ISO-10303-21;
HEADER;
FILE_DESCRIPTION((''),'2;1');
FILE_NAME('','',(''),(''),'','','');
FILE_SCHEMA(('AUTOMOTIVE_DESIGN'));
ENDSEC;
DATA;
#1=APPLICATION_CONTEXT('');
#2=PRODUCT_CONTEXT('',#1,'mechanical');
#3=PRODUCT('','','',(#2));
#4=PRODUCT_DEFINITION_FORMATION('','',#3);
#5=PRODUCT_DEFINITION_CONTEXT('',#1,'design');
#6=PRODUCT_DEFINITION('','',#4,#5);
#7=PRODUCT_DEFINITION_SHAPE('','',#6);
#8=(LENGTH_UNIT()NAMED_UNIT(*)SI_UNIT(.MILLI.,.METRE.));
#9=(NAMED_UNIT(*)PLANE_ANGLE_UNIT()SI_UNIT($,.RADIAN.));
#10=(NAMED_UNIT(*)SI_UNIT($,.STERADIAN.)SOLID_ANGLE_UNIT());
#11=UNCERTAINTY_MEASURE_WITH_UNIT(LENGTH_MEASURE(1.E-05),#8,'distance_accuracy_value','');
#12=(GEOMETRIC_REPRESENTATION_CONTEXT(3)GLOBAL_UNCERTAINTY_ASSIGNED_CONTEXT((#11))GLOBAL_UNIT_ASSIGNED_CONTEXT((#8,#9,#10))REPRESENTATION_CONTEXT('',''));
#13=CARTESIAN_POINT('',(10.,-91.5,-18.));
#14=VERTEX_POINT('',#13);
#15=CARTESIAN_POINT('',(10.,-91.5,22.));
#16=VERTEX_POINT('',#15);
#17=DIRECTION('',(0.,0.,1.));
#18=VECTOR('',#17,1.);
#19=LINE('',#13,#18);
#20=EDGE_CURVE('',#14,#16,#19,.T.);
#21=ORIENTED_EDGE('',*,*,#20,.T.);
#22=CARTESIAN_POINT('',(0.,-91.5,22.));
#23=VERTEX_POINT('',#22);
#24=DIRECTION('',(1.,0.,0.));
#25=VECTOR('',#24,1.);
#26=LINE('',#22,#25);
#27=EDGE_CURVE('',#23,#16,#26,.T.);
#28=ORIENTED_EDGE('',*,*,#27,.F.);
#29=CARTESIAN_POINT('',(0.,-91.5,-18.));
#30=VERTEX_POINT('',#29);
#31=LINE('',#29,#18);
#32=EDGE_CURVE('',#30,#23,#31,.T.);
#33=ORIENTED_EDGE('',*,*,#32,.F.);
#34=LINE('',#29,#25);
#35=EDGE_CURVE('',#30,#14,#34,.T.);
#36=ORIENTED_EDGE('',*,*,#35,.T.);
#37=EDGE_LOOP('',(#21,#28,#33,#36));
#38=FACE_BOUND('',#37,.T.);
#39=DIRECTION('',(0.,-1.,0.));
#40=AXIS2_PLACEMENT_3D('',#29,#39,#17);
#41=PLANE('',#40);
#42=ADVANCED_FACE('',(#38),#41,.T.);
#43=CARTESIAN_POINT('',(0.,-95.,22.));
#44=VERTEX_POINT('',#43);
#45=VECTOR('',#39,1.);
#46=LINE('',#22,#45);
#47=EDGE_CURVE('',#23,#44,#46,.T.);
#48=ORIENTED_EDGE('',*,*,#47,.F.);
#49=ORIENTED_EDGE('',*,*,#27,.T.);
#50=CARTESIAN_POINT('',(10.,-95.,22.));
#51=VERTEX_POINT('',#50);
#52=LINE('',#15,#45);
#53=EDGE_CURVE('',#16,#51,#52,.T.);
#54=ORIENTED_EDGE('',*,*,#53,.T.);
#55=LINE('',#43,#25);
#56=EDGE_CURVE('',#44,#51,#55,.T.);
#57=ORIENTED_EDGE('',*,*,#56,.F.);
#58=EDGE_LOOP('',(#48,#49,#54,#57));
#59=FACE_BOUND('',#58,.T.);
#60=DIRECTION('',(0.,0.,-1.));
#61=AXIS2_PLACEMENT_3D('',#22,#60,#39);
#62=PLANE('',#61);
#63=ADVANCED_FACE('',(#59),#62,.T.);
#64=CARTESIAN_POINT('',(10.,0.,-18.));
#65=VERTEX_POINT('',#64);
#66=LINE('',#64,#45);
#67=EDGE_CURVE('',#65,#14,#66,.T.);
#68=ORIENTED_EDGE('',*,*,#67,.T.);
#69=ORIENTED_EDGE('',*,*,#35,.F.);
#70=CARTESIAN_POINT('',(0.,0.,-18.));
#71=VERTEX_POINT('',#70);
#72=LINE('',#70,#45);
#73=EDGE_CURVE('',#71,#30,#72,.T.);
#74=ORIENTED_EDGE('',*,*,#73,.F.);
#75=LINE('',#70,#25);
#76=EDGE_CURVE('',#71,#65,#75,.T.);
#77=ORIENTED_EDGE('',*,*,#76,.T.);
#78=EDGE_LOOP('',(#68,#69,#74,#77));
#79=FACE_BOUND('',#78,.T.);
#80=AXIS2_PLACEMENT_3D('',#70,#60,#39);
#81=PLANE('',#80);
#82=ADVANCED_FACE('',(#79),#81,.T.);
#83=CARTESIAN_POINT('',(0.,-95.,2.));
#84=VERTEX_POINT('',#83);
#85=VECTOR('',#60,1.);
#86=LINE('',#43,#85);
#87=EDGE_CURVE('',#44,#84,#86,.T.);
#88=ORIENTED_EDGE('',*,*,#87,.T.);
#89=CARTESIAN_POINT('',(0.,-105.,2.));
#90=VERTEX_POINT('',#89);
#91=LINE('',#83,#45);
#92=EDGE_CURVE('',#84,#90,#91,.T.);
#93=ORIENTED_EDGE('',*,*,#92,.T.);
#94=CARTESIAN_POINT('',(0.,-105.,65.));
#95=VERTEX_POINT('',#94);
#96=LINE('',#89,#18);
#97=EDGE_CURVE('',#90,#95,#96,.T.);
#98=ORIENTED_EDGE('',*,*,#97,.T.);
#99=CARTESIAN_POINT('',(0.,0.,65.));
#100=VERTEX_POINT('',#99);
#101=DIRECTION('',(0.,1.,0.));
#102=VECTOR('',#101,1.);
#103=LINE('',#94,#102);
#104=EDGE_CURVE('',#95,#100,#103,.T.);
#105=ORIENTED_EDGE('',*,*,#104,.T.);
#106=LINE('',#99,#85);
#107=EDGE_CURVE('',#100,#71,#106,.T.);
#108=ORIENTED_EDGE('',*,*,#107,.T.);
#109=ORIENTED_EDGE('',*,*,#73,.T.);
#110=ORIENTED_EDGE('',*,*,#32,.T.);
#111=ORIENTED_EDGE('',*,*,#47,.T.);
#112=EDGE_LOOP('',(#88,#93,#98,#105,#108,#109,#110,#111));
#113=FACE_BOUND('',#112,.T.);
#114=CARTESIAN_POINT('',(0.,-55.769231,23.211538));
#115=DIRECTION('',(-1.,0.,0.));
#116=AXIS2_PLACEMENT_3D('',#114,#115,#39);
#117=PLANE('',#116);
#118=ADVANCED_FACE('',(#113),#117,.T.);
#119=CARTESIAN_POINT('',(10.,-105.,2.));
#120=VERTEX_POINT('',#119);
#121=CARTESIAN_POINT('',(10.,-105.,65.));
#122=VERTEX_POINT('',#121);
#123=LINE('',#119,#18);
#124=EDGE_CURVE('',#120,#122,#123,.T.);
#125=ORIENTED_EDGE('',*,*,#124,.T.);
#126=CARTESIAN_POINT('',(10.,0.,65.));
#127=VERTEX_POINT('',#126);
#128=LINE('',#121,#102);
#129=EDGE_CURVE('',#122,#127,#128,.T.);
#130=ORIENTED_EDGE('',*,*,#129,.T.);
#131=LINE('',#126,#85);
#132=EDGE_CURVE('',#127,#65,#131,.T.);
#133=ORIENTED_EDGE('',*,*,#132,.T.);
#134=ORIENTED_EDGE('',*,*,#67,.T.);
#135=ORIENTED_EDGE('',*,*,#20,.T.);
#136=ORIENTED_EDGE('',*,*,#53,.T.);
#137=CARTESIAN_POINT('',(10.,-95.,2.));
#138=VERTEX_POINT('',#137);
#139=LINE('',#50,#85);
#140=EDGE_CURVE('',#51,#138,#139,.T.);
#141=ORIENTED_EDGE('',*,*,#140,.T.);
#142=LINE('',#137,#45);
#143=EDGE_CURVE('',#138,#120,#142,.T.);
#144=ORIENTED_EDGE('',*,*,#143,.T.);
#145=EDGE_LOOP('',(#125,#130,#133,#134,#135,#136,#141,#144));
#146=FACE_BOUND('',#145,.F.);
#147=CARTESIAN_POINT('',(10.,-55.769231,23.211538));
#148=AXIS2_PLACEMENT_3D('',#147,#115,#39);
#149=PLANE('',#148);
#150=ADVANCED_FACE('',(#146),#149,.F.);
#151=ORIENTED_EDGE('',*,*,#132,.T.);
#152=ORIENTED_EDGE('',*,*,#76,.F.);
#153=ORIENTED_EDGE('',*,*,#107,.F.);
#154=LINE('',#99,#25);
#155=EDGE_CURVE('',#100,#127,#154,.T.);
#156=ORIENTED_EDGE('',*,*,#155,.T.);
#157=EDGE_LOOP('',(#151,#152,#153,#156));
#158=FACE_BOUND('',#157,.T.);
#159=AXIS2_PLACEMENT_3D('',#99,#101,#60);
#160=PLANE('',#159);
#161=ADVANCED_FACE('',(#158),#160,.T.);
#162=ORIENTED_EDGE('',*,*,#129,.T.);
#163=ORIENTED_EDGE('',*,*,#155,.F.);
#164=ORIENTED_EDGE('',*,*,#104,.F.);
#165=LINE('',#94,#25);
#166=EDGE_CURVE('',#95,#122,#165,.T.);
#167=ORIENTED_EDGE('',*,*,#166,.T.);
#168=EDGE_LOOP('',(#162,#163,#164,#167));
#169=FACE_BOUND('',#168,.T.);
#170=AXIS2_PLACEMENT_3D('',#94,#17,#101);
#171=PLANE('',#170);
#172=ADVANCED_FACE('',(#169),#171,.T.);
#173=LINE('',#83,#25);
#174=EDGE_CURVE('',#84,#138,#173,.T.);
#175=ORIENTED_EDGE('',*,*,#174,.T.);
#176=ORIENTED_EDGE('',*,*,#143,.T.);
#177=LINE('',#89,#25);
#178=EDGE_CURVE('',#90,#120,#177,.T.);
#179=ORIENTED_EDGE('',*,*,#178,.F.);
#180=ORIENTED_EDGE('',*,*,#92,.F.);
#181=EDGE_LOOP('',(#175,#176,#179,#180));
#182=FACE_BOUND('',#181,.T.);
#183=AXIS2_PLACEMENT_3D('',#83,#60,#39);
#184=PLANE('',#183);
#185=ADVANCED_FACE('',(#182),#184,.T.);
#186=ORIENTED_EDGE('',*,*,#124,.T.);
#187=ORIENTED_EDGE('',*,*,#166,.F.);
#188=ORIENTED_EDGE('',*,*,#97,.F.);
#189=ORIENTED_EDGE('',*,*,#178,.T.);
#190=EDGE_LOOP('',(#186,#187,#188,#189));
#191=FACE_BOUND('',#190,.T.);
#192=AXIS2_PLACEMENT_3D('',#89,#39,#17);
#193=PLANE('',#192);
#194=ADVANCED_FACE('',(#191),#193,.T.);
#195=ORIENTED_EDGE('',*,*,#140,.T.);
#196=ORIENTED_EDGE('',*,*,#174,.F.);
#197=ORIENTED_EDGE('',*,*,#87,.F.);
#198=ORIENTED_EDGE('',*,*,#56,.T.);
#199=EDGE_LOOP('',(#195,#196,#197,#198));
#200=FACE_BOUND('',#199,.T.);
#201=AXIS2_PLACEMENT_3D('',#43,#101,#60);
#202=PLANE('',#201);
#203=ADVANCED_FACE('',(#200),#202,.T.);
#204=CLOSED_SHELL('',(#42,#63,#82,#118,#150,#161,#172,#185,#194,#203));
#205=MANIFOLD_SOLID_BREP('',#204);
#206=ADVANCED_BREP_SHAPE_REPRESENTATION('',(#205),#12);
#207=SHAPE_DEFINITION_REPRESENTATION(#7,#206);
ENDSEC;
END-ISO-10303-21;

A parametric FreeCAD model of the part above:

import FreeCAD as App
import Part
import Sketcher


def add_polygon(sketch, points):
    """Adds a closed chain of lines whose ends are joined by coincident constraints."""
    first, n = sketch.GeometryCount, len(points)
    for a, b in zip(points, points[1:] + points[:1]):
        sketch.addGeometry(Part.LineSegment(App.Vector(*a, 0), App.Vector(*b, 0)), False)
    for i in range(n):
        sketch.addConstraint(Sketcher.Constraint("Coincident", first + i, 2, first + (i + 1) % n, 1))

doc = App.newDocument("Part")
params = doc.addObject("Spreadsheet::Sheet", "Params")
for row, (alias, value) in enumerate([
    ("sketch1_width", "105 mm"),
    ("sketch1_width2", "10 mm"),
    ("sketch1_height", "83 mm"),
    ("sketch1_height2", "63 mm"),
    ("sketch1_height3", "20 mm"),
    ("pad1_length", "10 mm"),
], start=1):
    params.set(f"A{row}", alias)
    params.set(f"B{row}", "=" + value)
    params.setAlias(f"B{row}", alias)

body = doc.addObject("PartDesign::Body", "Body")

# Sketch on YZ plane
sketch1 = body.newObject("Sketcher::SketchObject", "Sketch")
sketch1.AttachmentSupport = (doc.getObject("YZ_Plane"), [""])
sketch1.MapMode = "FlatFace"
add_polygon(sketch1, [(-91.5, -18), (0, -18), (0, 65), (-105, 65), (-105, 2), (-95, 2), (-95, 22), (-91.5, 22)])  # lines 0-7
sketch1.addConstraint([
    Sketcher.Constraint("Horizontal", 0),
    Sketcher.Constraint("Vertical", 1),
    Sketcher.Constraint("Horizontal", 2),
    Sketcher.Constraint("Vertical", 3),
    Sketcher.Constraint("Horizontal", 4),
    Sketcher.Constraint("Vertical", 5),
    Sketcher.Constraint("Horizontal", 6),
    Sketcher.Constraint("Vertical", 7),
    Sketcher.Constraint("PointOnObject", 0, 2, -2),
    Sketcher.Constraint("DistanceX", 2, 2, 2, 1, 105.0),
    Sketcher.Constraint("DistanceX", 4, 1, 4, 2, 10.0),
    Sketcher.Constraint("DistanceY", 1, 1, 1, 2, 83.0),
    Sketcher.Constraint("DistanceY", 3, 2, 3, 1, 63.0),
    Sketcher.Constraint("DistanceY", 5, 1, 5, 2, 20.0),
    Sketcher.Constraint("DistanceX", 0, 1, 0, 2, 91.5),
    Sketcher.Constraint("DistanceY", 0, 2, -1, 1, 18.0),
])
sketch1.setExpression("Constraints[17]", "Params.sketch1_width")
sketch1.setExpression("Constraints[18]", "Params.sketch1_width2")
sketch1.setExpression("Constraints[19]", "Params.sketch1_height")
sketch1.setExpression("Constraints[20]", "Params.sketch1_height2")
sketch1.setExpression("Constraints[21]", "Params.sketch1_height3")
pad1 = body.newObject("PartDesign::Pad", "Pad")
pad1.Profile = sketch1
pad1.setExpression("Length", "Params.pad1_length")

doc.recompute()
